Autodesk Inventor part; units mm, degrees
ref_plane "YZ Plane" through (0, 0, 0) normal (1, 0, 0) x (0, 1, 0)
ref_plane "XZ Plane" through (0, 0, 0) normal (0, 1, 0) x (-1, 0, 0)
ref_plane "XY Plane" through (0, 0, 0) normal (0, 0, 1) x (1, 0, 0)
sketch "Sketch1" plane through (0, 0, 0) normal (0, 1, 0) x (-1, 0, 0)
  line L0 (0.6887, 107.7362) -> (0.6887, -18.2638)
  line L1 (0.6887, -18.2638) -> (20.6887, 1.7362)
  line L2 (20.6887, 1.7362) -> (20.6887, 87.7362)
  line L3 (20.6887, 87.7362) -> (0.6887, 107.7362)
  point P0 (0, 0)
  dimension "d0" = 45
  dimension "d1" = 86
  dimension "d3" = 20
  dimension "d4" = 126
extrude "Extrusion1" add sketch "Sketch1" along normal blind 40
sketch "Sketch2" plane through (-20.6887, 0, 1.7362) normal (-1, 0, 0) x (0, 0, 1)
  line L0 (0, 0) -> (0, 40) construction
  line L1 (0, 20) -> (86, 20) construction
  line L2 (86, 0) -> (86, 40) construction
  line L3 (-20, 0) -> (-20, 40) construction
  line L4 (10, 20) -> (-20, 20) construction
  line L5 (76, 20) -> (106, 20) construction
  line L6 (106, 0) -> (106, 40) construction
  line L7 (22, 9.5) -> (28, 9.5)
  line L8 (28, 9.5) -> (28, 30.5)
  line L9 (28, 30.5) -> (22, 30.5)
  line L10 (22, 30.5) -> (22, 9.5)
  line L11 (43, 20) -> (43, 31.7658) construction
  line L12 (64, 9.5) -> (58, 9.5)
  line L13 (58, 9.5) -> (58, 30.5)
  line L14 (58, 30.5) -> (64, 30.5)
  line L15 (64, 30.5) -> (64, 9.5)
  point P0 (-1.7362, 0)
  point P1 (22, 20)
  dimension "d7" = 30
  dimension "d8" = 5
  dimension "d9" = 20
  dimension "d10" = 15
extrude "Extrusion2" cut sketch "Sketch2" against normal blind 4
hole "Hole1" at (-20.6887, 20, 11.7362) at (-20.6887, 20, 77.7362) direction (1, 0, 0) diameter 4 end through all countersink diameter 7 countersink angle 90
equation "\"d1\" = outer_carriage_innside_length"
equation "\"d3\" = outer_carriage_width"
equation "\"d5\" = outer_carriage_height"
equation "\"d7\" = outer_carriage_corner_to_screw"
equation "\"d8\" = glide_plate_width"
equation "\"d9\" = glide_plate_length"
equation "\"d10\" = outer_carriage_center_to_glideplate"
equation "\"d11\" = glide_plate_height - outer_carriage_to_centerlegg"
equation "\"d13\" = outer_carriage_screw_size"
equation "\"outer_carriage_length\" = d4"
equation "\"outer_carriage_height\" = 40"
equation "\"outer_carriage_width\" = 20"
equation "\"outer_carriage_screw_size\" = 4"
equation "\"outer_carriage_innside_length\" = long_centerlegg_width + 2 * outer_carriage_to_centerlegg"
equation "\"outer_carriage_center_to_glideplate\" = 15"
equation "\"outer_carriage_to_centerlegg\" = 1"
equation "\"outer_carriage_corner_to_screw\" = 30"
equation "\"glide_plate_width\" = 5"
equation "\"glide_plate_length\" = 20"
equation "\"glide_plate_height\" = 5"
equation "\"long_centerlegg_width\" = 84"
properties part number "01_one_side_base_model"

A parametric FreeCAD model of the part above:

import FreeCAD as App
import Part
import Sketcher
from FreeCAD import Vector

doc = App.newDocument("Part")
body = doc.addObject("PartDesign::Body", "Body")

# Sketch on XZ plane
sketch1 = body.newObject("Sketcher::SketchObject", "Sketch")
sketch1.AttachmentSupport = (doc.getObject("XZ_Plane"), [""])
sketch1.MapMode = "FlatFace"
sketch1.addGeometry([
    Part.LineSegment(Vector(-21, 88, 0), Vector(-1, 108, 0)),
    Part.LineSegment(Vector(-1, 108, 0), Vector(-1, -18, 0)),
    Part.LineSegment(Vector(-1, -18, 0), Vector(-21, 2, 0)),
    Part.LineSegment(Vector(-21, 2, 0), Vector(-21, 88, 0)),
], False)
sketch1.addConstraint([
    Sketcher.Constraint("Coincident", 0, 2, 1, 1),
    Sketcher.Constraint("Coincident", 1, 2, 2, 1),
    Sketcher.Constraint("Coincident", 2, 2, 3, 1),
    Sketcher.Constraint("Coincident", 3, 2, 0, 1),
    Sketcher.Constraint("Vertical", 1),
    Sketcher.Constraint("Vertical", 3),
    Sketcher.Constraint("Perpendicular", 0, 2),
    Sketcher.Constraint("Equal", 0, 2),
    Sketcher.Constraint("DistanceY", 1, 2, 1, 1, 126.0),
    Sketcher.Constraint("DistanceY", 3, 1, 3, 2, 86.0),
    Sketcher.Constraint("DistanceX", 0, 2, -1, 1, 0.6887),
    Sketcher.Constraint("DistanceY", -1, 1, 0, 2, 107.7362),
])
pad1 = body.newObject("PartDesign::Pad", "Pad")
pad1.Profile = sketch1
pad1.Length = 40
pad1.Reversed = True

# Sketch on YZ plane
sketch2 = body.newObject("Sketcher::SketchObject", "Sketch001")
sketch2.AttachmentSupport = (doc.getObject("YZ_Plane"), [""])
sketch2.MapMode = "FlatFace"
sketch2.AttachmentOffset = App.Placement(Vector(0, 0, -20.6887), App.Rotation())
sketch2.addGeometry([
    Part.LineSegment(Vector(30, 24, 0), Vector(10, 24, 0)),  # 0
    Part.LineSegment(Vector(10, 24, 0), Vector(10, 30, 0)),  # 1
    Part.LineSegment(Vector(10, 30, 0), Vector(30, 30, 0)),  # 2
    Part.LineSegment(Vector(30, 30, 0), Vector(30, 24, 0)),  # 3
    Part.LineSegment(Vector(10, 60, 0), Vector(10, 66, 0)),  # 4
    Part.LineSegment(Vector(10, 66, 0), Vector(30, 66, 0)),  # 5
    Part.LineSegment(Vector(30, 66, 0), Vector(30, 60, 0)),  # 6
    Part.LineSegment(Vector(30, 60, 0), Vector(10, 60, 0)),  # 7
], False)
sketch2.addConstraint([
    Sketcher.Constraint("Coincident", 0, 2, 1, 1),
    Sketcher.Constraint("Coincident", 1, 2, 2, 1),
    Sketcher.Constraint("Coincident", 2, 2, 3, 1),
    Sketcher.Constraint("Coincident", 3, 2, 0, 1),
    Sketcher.Constraint("Coincident", 4, 2, 5, 1),
    Sketcher.Constraint("Coincident", 5, 2, 6, 1),
    Sketcher.Constraint("Coincident", 6, 2, 7, 1),
    Sketcher.Constraint("Coincident", 7, 2, 4, 1),
    Sketcher.Constraint("Horizontal", 0),
    Sketcher.Constraint("Vertical", 1),
    Sketcher.Constraint("Horizontal", 2),
    Sketcher.Constraint("Vertical", 3),
    Sketcher.Constraint("Vertical", 4),
    Sketcher.Constraint("Horizontal", 5),
    Sketcher.Constraint("Vertical", 6),
    Sketcher.Constraint("Horizontal", 7),
    Sketcher.Constraint("Vertical", 1, 2, 4, 2),
    Sketcher.Constraint("Vertical", 3, 2, 5, 2),
    Sketcher.Constraint("Equal", 3, 4),
    Sketcher.Constraint("DistanceY", 2, 2, 6, 2, 30.0),
    Sketcher.Constraint("DistanceX", 0, 2, 0, 1, 21.0),
    Sketcher.Constraint("DistanceY", 1, 1, 1, 2, 6.0),
    Sketcher.Constraint("DistanceX", -1, 1, 0, 2, 9.5),
    Sketcher.Constraint("DistanceY", -1, 1, 0, 2, 23.7362),
])
pocket1 = body.newObject("PartDesign::Pocket", "Pocket")
pocket1.Profile = sketch2
pocket1.Length = 4
pocket1.Reversed = True

# Sketch on YZ plane
sketch3 = body.newObject("Sketcher::SketchObject", "Sketch002")
sketch3.AttachmentSupport = (doc.getObject("YZ_Plane"), [""])
sketch3.MapMode = "FlatFace"
sketch3.AttachmentOffset = App.Placement(Vector(0, 0, -20.6887), App.Rotation())
sketch3.addGeometry([
    Part.Circle(Vector(20, 11.7, 0), Vector(0, 0, 1), 2),
    Part.Circle(Vector(20, 77.7, 0), Vector(0, 0, 1), 2),
], False)
sketch3.addConstraint([
    Sketcher.Constraint("Equal", 0, 1),
    Sketcher.Constraint("Vertical", 0, 3, 1, 3),
    Sketcher.Constraint("Diameter", 0, 4.0),
    Sketcher.Constraint("DistanceX", -1, 1, 0, 3, 20.0),
    Sketcher.Constraint("DistanceY", 0, 3, 1, 3, 66.0),
    Sketcher.Constraint("DistanceY", -1, 1, 0, 3, 11.7362),
])
doc.recompute()
hole = body.newObject("PartDesign::Hole", "Hole")
hole.Profile = sketch3
hole.ThreadType = "None"
hole.Diameter = 4
hole.DepthType = "ThroughAll"
hole.HoleCutType = "Countersink"
hole.HoleCutDiameter = 7
hole.HoleCutCountersinkAngle = 90
hole.Reversed = True

doc.recompute()
